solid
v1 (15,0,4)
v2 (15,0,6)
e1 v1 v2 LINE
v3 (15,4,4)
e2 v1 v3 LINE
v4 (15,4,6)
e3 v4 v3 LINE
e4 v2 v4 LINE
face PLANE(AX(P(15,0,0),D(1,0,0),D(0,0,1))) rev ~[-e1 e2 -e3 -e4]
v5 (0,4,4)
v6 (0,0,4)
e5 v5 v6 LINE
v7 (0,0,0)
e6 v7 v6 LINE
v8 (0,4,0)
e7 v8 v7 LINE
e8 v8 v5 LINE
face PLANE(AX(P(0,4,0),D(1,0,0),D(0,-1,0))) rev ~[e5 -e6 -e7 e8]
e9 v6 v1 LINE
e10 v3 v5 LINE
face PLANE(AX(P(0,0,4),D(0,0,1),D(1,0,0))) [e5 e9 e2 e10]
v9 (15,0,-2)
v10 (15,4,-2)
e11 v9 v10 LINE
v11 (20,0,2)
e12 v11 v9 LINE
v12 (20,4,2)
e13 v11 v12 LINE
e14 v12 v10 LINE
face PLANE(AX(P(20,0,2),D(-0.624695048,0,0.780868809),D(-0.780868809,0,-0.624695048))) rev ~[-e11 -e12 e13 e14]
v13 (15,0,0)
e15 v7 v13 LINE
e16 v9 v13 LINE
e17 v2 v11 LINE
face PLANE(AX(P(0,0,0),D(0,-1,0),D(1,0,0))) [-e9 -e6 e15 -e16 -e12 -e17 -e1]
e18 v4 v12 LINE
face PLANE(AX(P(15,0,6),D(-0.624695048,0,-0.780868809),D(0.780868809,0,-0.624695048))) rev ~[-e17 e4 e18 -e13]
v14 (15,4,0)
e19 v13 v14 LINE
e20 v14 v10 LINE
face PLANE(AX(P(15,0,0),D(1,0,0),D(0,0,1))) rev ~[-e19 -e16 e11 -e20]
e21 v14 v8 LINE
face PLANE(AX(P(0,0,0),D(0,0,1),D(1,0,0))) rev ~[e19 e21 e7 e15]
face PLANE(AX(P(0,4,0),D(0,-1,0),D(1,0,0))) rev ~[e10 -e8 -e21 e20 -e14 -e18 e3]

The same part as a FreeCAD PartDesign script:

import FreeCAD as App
import Part
import Sketcher
Q = App.Units.Quantity


def add_polygon(sketch, points):
    """Adds a closed chain of lines whose ends are joined by coincident constraints."""
    first, n = sketch.GeometryCount, len(points)
    for a, b in zip(points, points[1:] + points[:1]):
        sketch.addGeometry(Part.LineSegment(App.Vector(*a, 0), App.Vector(*b, 0)), False)
    for i in range(n):
        sketch.addConstraint(Sketcher.Constraint("Coincident", first + i, 2, first + (i + 1) % n, 1))

doc = App.newDocument("Part")
body = doc.addObject("PartDesign::Body", "Body")

sketch1 = body.newObject("Sketcher::SketchObject", "Sketch")
sketch1.AttachmentSupport = (doc.getObject("XY_Plane"), [""])
sketch1.MapMode = "FlatFace"
add_polygon(sketch1, [(0, 4), (0, 0), (15, 0), (15, 4)])
sketch1.addConstraint(Sketcher.Constraint("Vertical", 0))
sketch1.addConstraint(Sketcher.Constraint("Horizontal", 1))
sketch1.addConstraint(Sketcher.Constraint("Vertical", 2))
sketch1.addConstraint(Sketcher.Constraint("Horizontal", 3))
sketch1.addConstraint(Sketcher.Constraint("Coincident", 0, 2, -1, 1))
sketch1.addConstraint(Sketcher.Constraint("DistanceX", 1, 1, 1, 2, Q("15 mm")))
sketch1.addConstraint(Sketcher.Constraint("DistanceY", 0, 2, 0, 1, Q("4 mm")))
pad1 = body.newObject("PartDesign::Pad", "Pad")
pad1.Profile = sketch1
pad1.Length = 4

sketch2 = body.newObject("Sketcher::SketchObject", "Sketch001")
sketch2.AttachmentSupport = (doc.getObject("XZ_Plane"), [""])
sketch2.MapMode = "FlatFace"
add_polygon(sketch2, [(15, -2), (20, 2), (15, 6)])
sketch2.addConstraint(Sketcher.Constraint("Vertical", 2))
sketch2.addConstraint(Sketcher.Constraint("Equal", 0, 1))
sketch2.addConstraint(Sketcher.Constraint("DistanceY", 2, 2, 2, 1, Q("8 mm")))
sketch2.addConstraint(Sketcher.Constraint("DistanceX", 1, 2, 0, 2, Q("5 mm")))
sketch2.addConstraint(Sketcher.Constraint("DistanceX", -1, 1, 0, 2, Q("20 mm")))
sketch2.addConstraint(Sketcher.Constraint("DistanceY", -1, 1, 0, 2, Q("2 mm")))
pad2 = body.newObject("PartDesign::Pad", "Pad001")
pad2.Profile = sketch2
pad2.Length = 4
pad2.Reversed = True

doc.recompute()
